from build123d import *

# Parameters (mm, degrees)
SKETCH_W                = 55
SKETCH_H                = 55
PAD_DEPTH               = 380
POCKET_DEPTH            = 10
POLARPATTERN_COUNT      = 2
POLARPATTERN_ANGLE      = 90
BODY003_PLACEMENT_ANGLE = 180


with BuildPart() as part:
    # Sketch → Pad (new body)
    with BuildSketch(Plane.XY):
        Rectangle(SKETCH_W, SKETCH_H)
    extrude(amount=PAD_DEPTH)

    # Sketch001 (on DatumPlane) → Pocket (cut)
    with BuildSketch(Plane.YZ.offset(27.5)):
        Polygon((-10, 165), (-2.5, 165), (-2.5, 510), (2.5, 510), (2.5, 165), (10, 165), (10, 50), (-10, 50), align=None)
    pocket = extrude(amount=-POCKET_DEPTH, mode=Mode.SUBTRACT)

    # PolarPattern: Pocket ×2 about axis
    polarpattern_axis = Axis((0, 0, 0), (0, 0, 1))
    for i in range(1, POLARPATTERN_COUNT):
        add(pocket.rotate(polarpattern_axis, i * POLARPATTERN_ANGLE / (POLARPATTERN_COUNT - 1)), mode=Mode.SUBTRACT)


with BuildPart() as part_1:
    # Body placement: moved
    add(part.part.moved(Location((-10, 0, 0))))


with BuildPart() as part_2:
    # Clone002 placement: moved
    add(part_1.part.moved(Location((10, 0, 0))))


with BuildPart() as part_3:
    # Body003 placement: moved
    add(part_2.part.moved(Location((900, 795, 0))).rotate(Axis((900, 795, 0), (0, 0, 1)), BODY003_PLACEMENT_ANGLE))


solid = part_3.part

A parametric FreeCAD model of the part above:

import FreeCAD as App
import Part
import Sketcher

V = App.Vector

doc = App.newDocument("Part")
body = doc.addObject("PartDesign::Body", "Body")

# Sketch on XY plane
sketch1 = body.newObject("Sketcher::SketchObject", "Sketch")
sketch1.AttachmentSupport = (doc.getObject("XY_Plane"), [""])
sketch1.MapMode = "FlatFace"
sketch1.addGeometry(Part.LineSegment(V(-27.5, 27.5, 0), V(-27.5, -27.5, 0)), False)
sketch1.addGeometry(Part.LineSegment(V(-27.5, -27.5, 0), V(27.5, -27.5, 0)), False)
sketch1.addGeometry(Part.LineSegment(V(27.5, -27.5, 0), V(27.5, 27.5, 0)), False)
sketch1.addGeometry(Part.LineSegment(V(27.5, 27.5, 0), V(-27.5, 27.5, 0)), False)
sketch1.addConstraint(Sketcher.Constraint("Coincident", 0, 2, 1, 1))
sketch1.addConstraint(Sketcher.Constraint("Coincident", 1, 2, 2, 1))
sketch1.addConstraint(Sketcher.Constraint("Coincident", 2, 2, 3, 1))
sketch1.addConstraint(Sketcher.Constraint("Coincident", 3, 2, 0, 1))
sketch1.addConstraint(Sketcher.Constraint("Vertical", 0))
sketch1.addConstraint(Sketcher.Constraint("Horizontal", 1))
sketch1.addConstraint(Sketcher.Constraint("Vertical", 2))
sketch1.addConstraint(Sketcher.Constraint("Horizontal", 3))
sketch1.addConstraint(Sketcher.Constraint("Symmetric", 0, 2, 2, 2, -1, 1))
sketch1.addConstraint(Sketcher.Constraint("Equal", 3, 0))
sketch1.addConstraint(Sketcher.Constraint("DistanceX", 1, 1, 1, 2, 55.0))
pad1 = body.newObject("PartDesign::Pad", "Pad")
pad1.Profile = sketch1
pad1.Length = 380

# Sketch on YZ plane
sketch2 = body.newObject("Sketcher::SketchObject", "Sketch001")
sketch2.AttachmentSupport = (doc.getObject("YZ_Plane"), [""])
sketch2.MapMode = "FlatFace"
sketch2.AttachmentOffset = App.Placement(V(0, 0, 27.5), App.Rotation())
sketch2.addGeometry(Part.LineSegment(V(-2.5, 165, 0), V(-10, 165, 0)), False)
sketch2.addGeometry(Part.LineSegment(V(-10, 165, 0), V(-10, 50, 0)), False)
sketch2.addGeometry(Part.LineSegment(V(-10, 50, 0), V(10, 50, 0)), False)
sketch2.addGeometry(Part.LineSegment(V(10, 50, 0), V(10, 165, 0)), False)
sketch2.addGeometry(Part.LineSegment(V(10, 165, 0), V(2.5, 165, 0)), False)
sketch2.addGeometry(Part.LineSegment(V(2.5, 165, 0), V(2.5, 510, 0)), False)
sketch2.addGeometry(Part.LineSegment(V(2.5, 510, 0), V(-2.5, 510, 0)), False)
sketch2.addGeometry(Part.LineSegment(V(-2.5, 510, 0), V(-2.5, 165, 0)), False)
sketch2.addConstraint(Sketcher.Constraint("Coincident", 0, 2, 1, 1))
sketch2.addConstraint(Sketcher.Constraint("Coincident", 1, 2, 2, 1))
sketch2.addConstraint(Sketcher.Constraint("Coincident", 2, 2, 3, 1))
sketch2.addConstraint(Sketcher.Constraint("Coincident", 3, 2, 4, 1))
sketch2.addConstraint(Sketcher.Constraint("Coincident", 4, 2, 5, 1))
sketch2.addConstraint(Sketcher.Constraint("Coincident", 5, 2, 6, 1))
sketch2.addConstraint(Sketcher.Constraint("Coincident", 6, 2, 7, 1))
sketch2.addConstraint(Sketcher.Constraint("Coincident", 7, 2, 0, 1))
sketch2.addConstraint(Sketcher.Constraint("Horizontal", 0))
sketch2.addConstraint(Sketcher.Constraint("Vertical", 1))
sketch2.addConstraint(Sketcher.Constraint("Horizontal", 2))
sketch2.addConstraint(Sketcher.Constraint("Vertical", 3))
sketch2.addConstraint(Sketcher.Constraint("Horizontal", 4))
sketch2.addConstraint(Sketcher.Constraint("Vertical", 5))
sketch2.addConstraint(Sketcher.Constraint("Horizontal", 6))
sketch2.addConstraint(Sketcher.Constraint("Vertical", 7))
sketch2.addConstraint(Sketcher.Constraint("Symmetric", 0, 2, 3, 2, -2))
sketch2.addConstraint(Sketcher.Constraint("Equal", 0, 4))
sketch2.addConstraint(Sketcher.Constraint("DistanceX", 2, 1, 2, 2, 20.0))
sketch2.addConstraint(Sketcher.Constraint("DistanceX", 6, 2, 6, 1, 5.0))
sketch2.addConstraint(Sketcher.Constraint("DistanceY", 1, 2, 1, 1, 115.0))
sketch2.addConstraint(Sketcher.Constraint("DistanceY", 5, 1, 5, 2, 345.0))
sketch2.addConstraint(Sketcher.Constraint("DistanceY", -1, 1, 0, 2, 165.0))
pocket1 = body.newObject("PartDesign::Pocket", "Pocket")
pocket1.Profile = sketch2
pocket1.Length = 10
doc.recompute()

polarpattern = body.newObject("PartDesign::PolarPattern", "PolarPattern")
polarpattern.Originals = [pocket1]
polarpattern.Axis = (doc.getObject("Z_Axis"), [""])
polarpattern.Angle = 90
polarpattern.Occurrences = 2
body.Tip = polarpattern
body2 = doc.addObject("PartDesign::Body", "Body001")
doc.recompute()

body.Placement = App.Placement(V(-10, 0, 0), App.Rotation(V(0, 0, 1), 0))
boolean = body2.newObject("PartDesign::Boolean", "Boolean")
boolean.Type = "Fuse"
boolean.addObjects([body])
body3 = doc.addObject("PartDesign::Body", "Body002")
doc.recompute()

body2.Placement = App.Placement(V(10, 0, 0), App.Rotation(V(0, 0, 1), 0))
boolean2 = body3.newObject("PartDesign::Boolean", "Boolean001")
boolean2.Type = "Fuse"
boolean2.addObjects([body2])
body4 = doc.addObject("PartDesign::Body", "Body003")
doc.recompute()

body3.Placement = App.Placement(V(900, 795, 0), App.Rotation(V(0, 0, 1), 180))
boolean3 = body4.newObject("PartDesign::Boolean", "Boolean002")
boolean3.Type = "Fuse"
boolean3.addObjects([body3])

doc.recompute()
